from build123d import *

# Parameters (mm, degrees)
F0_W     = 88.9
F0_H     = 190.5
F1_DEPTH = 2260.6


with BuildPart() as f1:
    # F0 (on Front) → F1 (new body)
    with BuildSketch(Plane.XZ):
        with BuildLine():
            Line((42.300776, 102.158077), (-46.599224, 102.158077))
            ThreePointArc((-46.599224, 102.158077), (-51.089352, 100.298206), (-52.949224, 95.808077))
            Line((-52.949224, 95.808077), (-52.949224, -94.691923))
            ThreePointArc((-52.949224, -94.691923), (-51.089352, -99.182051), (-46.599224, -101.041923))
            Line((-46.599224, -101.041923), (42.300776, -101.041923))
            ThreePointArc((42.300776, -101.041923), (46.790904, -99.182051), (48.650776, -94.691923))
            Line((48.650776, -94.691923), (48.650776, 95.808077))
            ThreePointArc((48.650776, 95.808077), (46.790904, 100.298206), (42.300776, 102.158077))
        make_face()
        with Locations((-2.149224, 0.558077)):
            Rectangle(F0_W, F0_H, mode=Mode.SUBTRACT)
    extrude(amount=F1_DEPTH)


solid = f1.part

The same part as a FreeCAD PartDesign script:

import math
import FreeCAD as App
import Part
import Sketcher

V = App.Vector
Q = App.Units.Quantity


def add_polygon(sketch, points):
    """Adds a closed chain of lines whose ends are joined by coincident constraints."""
    first, n = sketch.GeometryCount, len(points)
    for a, b in zip(points, points[1:] + points[:1]):
        sketch.addGeometry(Part.LineSegment(App.Vector(*a, 0), App.Vector(*b, 0)), False)
    for i in range(n):
        sketch.addConstraint(Sketcher.Constraint("Coincident", first + i, 2, first + (i + 1) % n, 1))

doc = App.newDocument("Part")
body = doc.addObject("PartDesign::Body", "Body")

sketch1 = body.newObject("Sketcher::SketchObject", "Sketch")
sketch1.AttachmentSupport = (doc.getObject("XZ_Plane"), [""])
sketch1.MapMode = "FlatFace"
sketch1.addGeometry(Part.LineSegment(V(42, 102, 0), V(-47, 102, 0)), False)
sketch1.addGeometry(Part.ArcOfCircle(Part.Circle(V(-47, 96, 0), V(0, 0, 1), 6), math.radians(90), math.radians(180)), False)
sketch1.addGeometry(Part.LineSegment(V(-53, 96, 0), V(-53, -95, 0)), False)
sketch1.addGeometry(Part.ArcOfCircle(Part.Circle(V(-47, -95, 0), V(0, 0, 1), 6), math.radians(-180), math.radians(-90)), False)
sketch1.addGeometry(Part.LineSegment(V(-47, -101, 0), V(42, -101, 0)), False)
sketch1.addGeometry(Part.ArcOfCircle(Part.Circle(V(42, -95, 0), V(0, 0, 1), 6), math.radians(-90), math.radians(0)), False)
sketch1.addGeometry(Part.LineSegment(V(49, -95, 0), V(49, 96, 0)), False)
sketch1.addGeometry(Part.ArcOfCircle(Part.Circle(V(42, 96, 0), V(0, 0, 1), 6), math.radians(0), math.radians(90)), False)
add_polygon(sketch1, [(42, -95), (-47, -95), (-47, 96), (42, 96)])
sketch1.addConstraint(Sketcher.Constraint("Tangent", 0, 2, 1, 1))
sketch1.addConstraint(Sketcher.Constraint("Tangent", 1, 2, 2, 1))
sketch1.addConstraint(Sketcher.Constraint("Tangent", 2, 2, 3, 1))
sketch1.addConstraint(Sketcher.Constraint("Tangent", 3, 2, 4, 1))
sketch1.addConstraint(Sketcher.Constraint("Tangent", 4, 2, 5, 1))
sketch1.addConstraint(Sketcher.Constraint("Tangent", 5, 2, 6, 1))
sketch1.addConstraint(Sketcher.Constraint("Tangent", 6, 2, 7, 1))
sketch1.addConstraint(Sketcher.Constraint("Tangent", 7, 2, 0, 1))
sketch1.addConstraint(Sketcher.Constraint("Horizontal", 0))
sketch1.addConstraint(Sketcher.Constraint("Vertical", 2))
sketch1.addConstraint(Sketcher.Constraint("Horizontal", 4))
sketch1.addConstraint(Sketcher.Constraint("Vertical", 6))
sketch1.addConstraint(Sketcher.Constraint("Horizontal", 8))
sketch1.addConstraint(Sketcher.Constraint("Vertical", 9))
sketch1.addConstraint(Sketcher.Constraint("Horizontal", 10))
sketch1.addConstraint(Sketcher.Constraint("Vertical", 11))
sketch1.addConstraint(Sketcher.Constraint("Coincident", 8, 2, 3, 3))
sketch1.addConstraint(Sketcher.Constraint("Coincident", 9, 2, 1, 3))
sketch1.addConstraint(Sketcher.Constraint("Coincident", 10, 2, 7, 3))
sketch1.addConstraint(Sketcher.Constraint("Equal", 3, 5))
sketch1.addConstraint(Sketcher.Constraint("Radius", 1, Q("0.2499999 in")))
sketch1.addConstraint(Sketcher.Constraint("DistanceX", 0, 2, 0, 1, Q("3.5 in")))
sketch1.addConstraint(Sketcher.Constraint("DistanceY", 2, 2, 2, 1, Q("7.5 in")))
sketch1.addConstraint(Sketcher.Constraint("DistanceY", -1, 1, 1, 3, 95.808078))
sketch1.addConstraint(Sketcher.Constraint("DistanceX", 1, 3, -1, 1, 46.599226))
pad1 = body.newObject("PartDesign::Pad", "Pad")
pad1.Profile = sketch1
pad1.Length = Q("89 in")

doc.recompute()
